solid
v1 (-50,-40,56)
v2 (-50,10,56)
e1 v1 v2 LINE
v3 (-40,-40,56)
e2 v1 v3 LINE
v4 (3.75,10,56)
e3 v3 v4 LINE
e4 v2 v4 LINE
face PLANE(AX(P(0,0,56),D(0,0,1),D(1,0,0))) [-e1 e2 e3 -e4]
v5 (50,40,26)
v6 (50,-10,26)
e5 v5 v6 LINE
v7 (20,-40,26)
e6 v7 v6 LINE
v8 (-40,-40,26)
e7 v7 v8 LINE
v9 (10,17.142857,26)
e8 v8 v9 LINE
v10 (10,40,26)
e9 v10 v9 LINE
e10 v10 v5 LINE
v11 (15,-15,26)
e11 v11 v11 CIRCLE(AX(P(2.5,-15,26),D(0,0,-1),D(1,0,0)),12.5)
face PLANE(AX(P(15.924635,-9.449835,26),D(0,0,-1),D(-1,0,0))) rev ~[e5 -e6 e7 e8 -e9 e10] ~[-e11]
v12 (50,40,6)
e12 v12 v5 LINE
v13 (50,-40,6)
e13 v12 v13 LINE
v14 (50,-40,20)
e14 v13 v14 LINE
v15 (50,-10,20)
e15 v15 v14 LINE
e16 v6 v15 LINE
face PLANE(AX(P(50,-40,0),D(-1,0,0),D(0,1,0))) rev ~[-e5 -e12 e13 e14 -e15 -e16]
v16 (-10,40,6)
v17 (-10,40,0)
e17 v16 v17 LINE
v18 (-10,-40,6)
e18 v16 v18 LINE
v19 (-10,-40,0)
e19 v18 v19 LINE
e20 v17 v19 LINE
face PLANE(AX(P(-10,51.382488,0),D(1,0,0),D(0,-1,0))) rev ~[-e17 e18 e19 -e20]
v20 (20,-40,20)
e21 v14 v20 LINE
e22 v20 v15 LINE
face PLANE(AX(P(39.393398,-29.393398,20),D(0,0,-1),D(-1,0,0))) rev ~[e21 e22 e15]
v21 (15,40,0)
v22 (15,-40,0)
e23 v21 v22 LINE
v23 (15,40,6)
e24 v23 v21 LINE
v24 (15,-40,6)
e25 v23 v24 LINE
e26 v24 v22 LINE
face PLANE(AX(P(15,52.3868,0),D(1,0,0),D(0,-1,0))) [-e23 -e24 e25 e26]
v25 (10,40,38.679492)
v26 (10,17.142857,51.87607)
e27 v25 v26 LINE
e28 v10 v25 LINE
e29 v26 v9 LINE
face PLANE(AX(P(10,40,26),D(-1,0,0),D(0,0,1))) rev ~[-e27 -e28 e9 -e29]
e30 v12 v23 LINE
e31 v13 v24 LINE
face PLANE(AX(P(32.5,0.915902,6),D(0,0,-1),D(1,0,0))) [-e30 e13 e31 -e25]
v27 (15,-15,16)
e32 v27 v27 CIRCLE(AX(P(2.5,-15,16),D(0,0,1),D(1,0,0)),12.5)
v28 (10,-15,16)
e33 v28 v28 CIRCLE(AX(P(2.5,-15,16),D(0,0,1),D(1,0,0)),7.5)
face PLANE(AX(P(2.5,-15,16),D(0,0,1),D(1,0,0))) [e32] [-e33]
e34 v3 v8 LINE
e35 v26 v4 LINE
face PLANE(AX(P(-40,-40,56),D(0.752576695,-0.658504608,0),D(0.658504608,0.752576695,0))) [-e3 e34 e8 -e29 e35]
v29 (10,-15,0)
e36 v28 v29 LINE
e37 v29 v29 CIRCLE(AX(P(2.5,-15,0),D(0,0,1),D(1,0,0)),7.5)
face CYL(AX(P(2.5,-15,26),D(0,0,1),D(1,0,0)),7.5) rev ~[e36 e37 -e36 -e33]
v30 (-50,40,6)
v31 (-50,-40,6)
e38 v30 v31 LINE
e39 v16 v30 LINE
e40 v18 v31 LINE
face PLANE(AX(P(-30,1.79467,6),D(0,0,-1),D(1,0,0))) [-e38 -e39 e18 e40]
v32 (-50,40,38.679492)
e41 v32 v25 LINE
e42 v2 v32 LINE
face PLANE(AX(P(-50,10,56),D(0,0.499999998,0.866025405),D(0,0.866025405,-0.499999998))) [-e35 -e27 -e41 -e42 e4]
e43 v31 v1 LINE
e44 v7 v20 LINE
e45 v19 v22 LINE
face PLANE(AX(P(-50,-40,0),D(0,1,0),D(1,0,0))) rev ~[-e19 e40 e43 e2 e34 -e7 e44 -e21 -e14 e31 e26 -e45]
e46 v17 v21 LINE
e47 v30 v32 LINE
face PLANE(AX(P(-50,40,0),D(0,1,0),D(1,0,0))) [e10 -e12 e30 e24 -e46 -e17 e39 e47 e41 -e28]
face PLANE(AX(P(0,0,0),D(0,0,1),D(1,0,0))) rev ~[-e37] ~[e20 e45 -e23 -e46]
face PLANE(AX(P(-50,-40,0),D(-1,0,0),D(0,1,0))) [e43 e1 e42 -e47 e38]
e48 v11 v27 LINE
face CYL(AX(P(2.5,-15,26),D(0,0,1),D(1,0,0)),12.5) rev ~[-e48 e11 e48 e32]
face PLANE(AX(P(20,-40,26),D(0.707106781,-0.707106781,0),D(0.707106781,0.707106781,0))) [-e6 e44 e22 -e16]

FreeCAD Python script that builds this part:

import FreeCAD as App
import Part
import Sketcher
from FreeCAD import Vector
Q = App.Units.Quantity

doc = App.newDocument("Part")
body = doc.addObject("PartDesign::Body", "Body")

# Sketch on XY plane
sketch1 = doc.addObject("Sketcher::SketchObject", "Sketch")
body.addObject(sketch1)
sketch1.AttachmentSupport = (doc.XY_Plane, [""])
sketch1.MapMode = "FlatFace"
sketch1.addGeometry(Part.LineSegment(Vector(-50, 40, 0), Vector(-50, -40, 0)), False)
sketch1.addGeometry(Part.LineSegment(Vector(-50, -40, 0), Vector(50, -40, 0)), False)
sketch1.addGeometry(Part.LineSegment(Vector(50, -40, 0), Vector(50, 40, 0)), False)
sketch1.addGeometry(Part.LineSegment(Vector(50, 40, 0), Vector(-50, 40, 0)), False)
sketch1.addConstraint(Sketcher.Constraint("Coincident", 0, 2, 1, 1))
sketch1.addConstraint(Sketcher.Constraint("Coincident", 1, 2, 2, 1))
sketch1.addConstraint(Sketcher.Constraint("Coincident", 2, 2, 3, 1))
sketch1.addConstraint(Sketcher.Constraint("Coincident", 3, 2, 0, 1))
sketch1.addConstraint(Sketcher.Constraint("Vertical", 0))
sketch1.addConstraint(Sketcher.Constraint("Horizontal", 1))
sketch1.addConstraint(Sketcher.Constraint("Vertical", 2))
sketch1.addConstraint(Sketcher.Constraint("Horizontal", 3))
sketch1.addConstraint(Sketcher.Constraint("Symmetric", 0, 2, 2, 2, -1, 1))
sketch1.addConstraint(Sketcher.Constraint("DistanceX", 1, 1, 1, 2, 100.0))
sketch1.addConstraint(Sketcher.Constraint("DistanceY", 0, 2, 0, 1, 80.0))
pad1 = doc.addObject("PartDesign::Pad", "Pad")
body.addObject(pad1)
pad1.Profile = sketch1
pad1.Length = 56

# Sketch on XY plane
sketch2 = doc.addObject("Sketcher::SketchObject", "Sketch001")
body.addObject(sketch2)
sketch2.AttachmentSupport = (doc.XY_Plane, [""])
sketch2.MapMode = "FlatFace"
sketch2.addGeometry(Part.LineSegment(Vector(-50, -48, 0), Vector(-50, 51, 0)), False)
sketch2.addGeometry(Part.LineSegment(Vector(-50, 51, 0), Vector(-10, 51, 0)), False)
sketch2.addGeometry(Part.LineSegment(Vector(-10, 51, 0), Vector(-10, -48, 0)), False)
sketch2.addGeometry(Part.LineSegment(Vector(-10, -48, 0), Vector(-50, -48, 0)), False)
sketch2.addGeometry(Part.LineSegment(Vector(15, -51, 0), Vector(15, 52, 0)), False)
sketch2.addGeometry(Part.LineSegment(Vector(15, 52, 0), Vector(50, 52, 0)), False)
sketch2.addGeometry(Part.LineSegment(Vector(50, 52, 0), Vector(50, -51, 0)), False)
sketch2.addGeometry(Part.LineSegment(Vector(50, -51, 0), Vector(15, -51, 0)), False)
sketch2.addConstraint(Sketcher.Constraint("Coincident", 0, 2, 1, 1))
sketch2.addConstraint(Sketcher.Constraint("Coincident", 1, 2, 2, 1))
sketch2.addConstraint(Sketcher.Constraint("Coincident", 2, 2, 3, 1))
sketch2.addConstraint(Sketcher.Constraint("Coincident", 3, 2, 0, 1))
sketch2.addConstraint(Sketcher.Constraint("Coincident", 4, 2, 5, 1))
sketch2.addConstraint(Sketcher.Constraint("Coincident", 5, 2, 6, 1))
sketch2.addConstraint(Sketcher.Constraint("Coincident", 6, 2, 7, 1))
sketch2.addConstraint(Sketcher.Constraint("Coincident", 7, 2, 4, 1))
sketch2.addConstraint(Sketcher.Constraint("Vertical", 0))
sketch2.addConstraint(Sketcher.Constraint("Horizontal", 1))
sketch2.addConstraint(Sketcher.Constraint("Vertical", 2))
sketch2.addConstraint(Sketcher.Constraint("Horizontal", 3))
sketch2.addConstraint(Sketcher.Constraint("Vertical", 4))
sketch2.addConstraint(Sketcher.Constraint("Horizontal", 5))
sketch2.addConstraint(Sketcher.Constraint("Vertical", 6))
sketch2.addConstraint(Sketcher.Constraint("Horizontal", 7))
sketch2.addConstraint(Sketcher.Constraint("DistanceX", 1, 1, 1, 2, 40.0))
sketch2.addConstraint(Sketcher.Constraint("DistanceX", 5, 1, 5, 2, 35.0))
sketch2.addConstraint(Sketcher.Constraint("DistanceX", 0, 2, -1, 1, 50.0))
sketch2.addConstraint(Sketcher.Constraint("DistanceX", -1, 1, 4, 2, 15.0))
sketch2.addConstraint(Sketcher.Constraint("DistanceY", -1, 1, 4, 2, 52.3868))
sketch2.addConstraint(Sketcher.Constraint("DistanceY", 0, 1, 0, 2, 99.175636))
sketch2.addConstraint(Sketcher.Constraint("DistanceY", 4, 1, 4, 2, 102.941795))
sketch2.addConstraint(Sketcher.Constraint("DistanceY", -1, 1, 0, 2, 51.382488))
pocket1 = doc.addObject("PartDesign::Pocket", "Pocket")
body.addObject(pocket1)
pocket1.Profile = sketch2
pocket1.Length = 6
pocket1.Reversed = True

# Sketch on XY plane
sketch3 = doc.addObject("Sketcher::SketchObject", "Sketch002")
body.addObject(sketch3)
sketch3.AttachmentSupport = (doc.XY_Plane, [""])
sketch3.MapMode = "FlatFace"
sketch3.AttachmentOffset = App.Placement(Vector(0, 0, 56), App.Rotation())
sketch3.addGeometry(Part.LineSegment(Vector(30, 40, 0), Vector(-40, -40, 0)), False)
sketch3.addGeometry(Part.LineSegment(Vector(-40, -40, 0), Vector(50, -40, 0)), False)
sketch3.addGeometry(Part.LineSegment(Vector(50, -40, 0), Vector(50, 40, 0)), False)
sketch3.addGeometry(Part.LineSegment(Vector(50, 40, 0), Vector(30, 40, 0)), False)
sketch3.addConstraint(Sketcher.Constraint("Coincident", 0, 2, 1, 1))
sketch3.addConstraint(Sketcher.Constraint("Coincident", 1, 2, 2, 1))
sketch3.addConstraint(Sketcher.Constraint("Coincident", 2, 2, 3, 1))
sketch3.addConstraint(Sketcher.Constraint("Coincident", 3, 2, 0, 1))
sketch3.addConstraint(Sketcher.Constraint("Horizontal", 1))
sketch3.addConstraint(Sketcher.Constraint("Vertical", 2))
sketch3.addConstraint(Sketcher.Constraint("Horizontal", 3))
sketch3.addConstraint(Sketcher.Constraint("DistanceX", 1, 1, 1, 2, 90.0))
sketch3.addConstraint(Sketcher.Constraint("DistanceX", 3, 2, 3, 1, 20.0))
sketch3.addConstraint(Sketcher.Constraint("DistanceY", 2, 1, 2, 2, 80.0))
sketch3.addConstraint(Sketcher.Constraint("DistanceX", 0, 2, -1, 1, 40.0))
sketch3.addConstraint(Sketcher.Constraint("DistanceY", 0, 2, -1, 1, 40.0))
pocket2 = doc.addObject("PartDesign::Pocket", "Pocket001")
body.addObject(pocket2)
pocket2.Profile = sketch3
pocket2.Length = 30

# Sketch on XY plane
sketch4 = doc.addObject("Sketcher::SketchObject", "Sketch003")
body.addObject(sketch4)
sketch4.AttachmentSupport = (doc.XY_Plane, [""])
sketch4.MapMode = "FlatFace"
sketch4.AttachmentOffset = App.Placement(Vector(0, 0, 26), App.Rotation())
sketch4.addGeometry(Part.Circle(Vector(2, -15, 0), Vector(0, 0, 1), 8), False)
sketch4.addConstraint(Sketcher.Constraint("Diameter", 0, 15.0))
sketch4.addConstraint(Sketcher.Constraint("DistanceY", 0, 3, -1, 1, 15.0))
sketch4.addConstraint(Sketcher.Constraint("DistanceX", -1, 1, 0, 3, 2.5))
pocket3 = doc.addObject("PartDesign::Pocket", "Pocket002")
body.addObject(pocket3)
pocket3.Profile = sketch4
pocket3.Type = "ThroughAll"

# Sketch on XY plane
sketch5 = doc.addObject("Sketcher::SketchObject", "Sketch004")
body.addObject(sketch5)
sketch5.AttachmentSupport = (doc.XY_Plane, [""])
sketch5.MapMode = "FlatFace"
sketch5.AttachmentOffset = App.Placement(Vector(0, 0, 26), App.Rotation())
sketch5.addGeometry(Part.Circle(Vector(2, -15, 0), Vector(0, 0, 1), 12), False)
sketch5.addConstraint(Sketcher.Constraint("Diameter", 0, 25.0))
sketch5.addConstraint(Sketcher.Constraint("DistanceY", 0, 3, -1, 1, 15.0))
sketch5.addConstraint(Sketcher.Constraint("DistanceX", -1, 1, 0, 3, 2.5))
pocket4 = doc.addObject("PartDesign::Pocket", "Pocket003")
body.addObject(pocket4)
pocket4.Profile = sketch5
pocket4.Length = 10

# Sketch on XY plane
sketch6 = doc.addObject("Sketcher::SketchObject", "Sketch005")
body.addObject(sketch6)
sketch6.AttachmentSupport = (doc.XY_Plane, [""])
sketch6.MapMode = "FlatFace"
sketch6.AttachmentOffset = App.Placement(Vector(0, 0, 26), App.Rotation())
sketch6.addGeometry(Part.LineSegment(Vector(50, -10, 0), Vector(20, -40, 0)), False)
sketch6.addGeometry(Part.LineSegment(Vector(20, -40, 0), Vector(50, -40, 0)), False)
sketch6.addGeometry(Part.LineSegment(Vector(50, -40, 0), Vector(50, -10, 0)), False)
sketch6.addConstraint(Sketcher.Constraint("Coincident", 0, 2, 1, 1))
sketch6.addConstraint(Sketcher.Constraint("Coincident", 1, 2, 2, 1))
sketch6.addConstraint(Sketcher.Constraint("Coincident", 2, 2, 0, 1))
sketch6.addConstraint(Sketcher.Constraint("Horizontal", 1))
sketch6.addConstraint(Sketcher.Constraint("Vertical", 2))
sketch6.addConstraint(Sketcher.Constraint("Equal", 1, 2))
sketch6.addConstraint(Sketcher.Constraint("DistanceX", 1, 1, 1, 2, 30.0))
sketch6.addConstraint(Sketcher.Constraint("DistanceX", -1, 1, 0, 2, 20.0))
sketch6.addConstraint(Sketcher.Constraint("DistanceY", 0, 2, -1, 1, 40.0))
pocket5 = doc.addObject("PartDesign::Pocket", "Pocket004")
body.addObject(pocket5)
pocket5.Profile = sketch6
pocket5.Length = 6

# Sketch on YZ plane
sketch7 = doc.addObject("Sketcher::SketchObject", "Sketch006")
body.addObject(sketch7)
sketch7.AttachmentSupport = (doc.YZ_Plane, [""])
sketch7.MapMode = "FlatFace"
sketch7.AttachmentOffset = App.Placement(Vector(0, 0, -50), App.Rotation())
sketch7.addGeometry(Part.LineSegment(Vector(40, 56, 0), Vector(40, 39, 0)), False)
sketch7.addGeometry(Part.LineSegment(Vector(40, 39, 0), Vector(10, 56, 0)), False)
sketch7.addGeometry(Part.LineSegment(Vector(10, 56, 0), Vector(40, 56, 0)), False)
sketch7.addConstraint(Sketcher.Constraint("Coincident", 0, 2, 1, 1))
sketch7.addConstraint(Sketcher.Constraint("Coincident", 1, 2, 2, 1))
sketch7.addConstraint(Sketcher.Constraint("Coincident", 2, 2, 0, 1))
sketch7.addConstraint(Sketcher.Constraint("Vertical", 0))
sketch7.addConstraint(Sketcher.Constraint("Horizontal", 2))
sketch7.addConstraint(Sketcher.Constraint("DistanceX", 2, 1, 2, 2, 30.0))
sketch7.addConstraint(Sketcher.Constraint("Angle", 1, Q("150 deg")))
sketch7.addConstraint(Sketcher.Constraint("DistanceX", -1, 1, 0, 2, 40.0))
sketch7.addConstraint(Sketcher.Constraint("DistanceY", -1, 1, 1, 2, 56.0))
pocket6 = doc.addObject("PartDesign::Pocket", "Pocket005")
body.addObject(pocket6)
pocket6.Profile = sketch7
pocket6.Type = "ThroughAll"
pocket6.Reversed = True

# Sketch on XZ plane
sketch8 = doc.addObject("Sketcher::SketchObject", "Sketch007")
body.addObject(sketch8)
sketch8.AttachmentSupport = (doc.XZ_Plane, [""])
sketch8.MapMode = "FlatFace"
sketch8.AttachmentOffset = App.Placement(Vector(0, 0, -40), App.Rotation())
sketch8.addGeometry(Part.LineSegment(Vector(30, 58, 0), Vector(30, 26, 0)), False)
sketch8.addGeometry(Part.LineSegment(Vector(30, 26, 0), Vector(10, 26, 0)), False)
sketch8.addGeometry(Part.LineSegment(Vector(10, 26, 0), Vector(10, 58, 0)), False)
sketch8.addGeometry(Part.LineSegment(Vector(10, 58, 0), Vector(30, 58, 0)), False)
sketch8.addConstraint(Sketcher.Constraint("Coincident", 0, 2, 1, 1))
sketch8.addConstraint(Sketcher.Constraint("Coincident", 1, 2, 2, 1))
sketch8.addConstraint(Sketcher.Constraint("Coincident", 2, 2, 3, 1))
sketch8.addConstraint(Sketcher.Constraint("Coincident", 3, 2, 0, 1))
sketch8.addConstraint(Sketcher.Constraint("Vertical", 0))
sketch8.addConstraint(Sketcher.Constraint("Horizontal", 1))
sketch8.addConstraint(Sketcher.Constraint("Vertical", 2))
sketch8.addConstraint(Sketcher.Constraint("Horizontal", 3))
sketch8.addConstraint(Sketcher.Constraint("DistanceX", 1, 2, 1, 1, 20.0))
sketch8.addConstraint(Sketcher.Constraint("DistanceX", -1, 1, 0, 2, 30.0))
sketch8.addConstraint(Sketcher.Constraint("DistanceY", -1, 1, 0, 2, 26.0))
sketch8.addConstraint(Sketcher.Constraint("DistanceY", 0, 2, 0, 1, 31.79351))
pocket7 = doc.addObject("PartDesign::Pocket", "Pocket006")
body.addObject(pocket7)
pocket7.Profile = sketch8
pocket7.Type = "ThroughAll"
pocket7.Reversed = True

doc.recompute()
